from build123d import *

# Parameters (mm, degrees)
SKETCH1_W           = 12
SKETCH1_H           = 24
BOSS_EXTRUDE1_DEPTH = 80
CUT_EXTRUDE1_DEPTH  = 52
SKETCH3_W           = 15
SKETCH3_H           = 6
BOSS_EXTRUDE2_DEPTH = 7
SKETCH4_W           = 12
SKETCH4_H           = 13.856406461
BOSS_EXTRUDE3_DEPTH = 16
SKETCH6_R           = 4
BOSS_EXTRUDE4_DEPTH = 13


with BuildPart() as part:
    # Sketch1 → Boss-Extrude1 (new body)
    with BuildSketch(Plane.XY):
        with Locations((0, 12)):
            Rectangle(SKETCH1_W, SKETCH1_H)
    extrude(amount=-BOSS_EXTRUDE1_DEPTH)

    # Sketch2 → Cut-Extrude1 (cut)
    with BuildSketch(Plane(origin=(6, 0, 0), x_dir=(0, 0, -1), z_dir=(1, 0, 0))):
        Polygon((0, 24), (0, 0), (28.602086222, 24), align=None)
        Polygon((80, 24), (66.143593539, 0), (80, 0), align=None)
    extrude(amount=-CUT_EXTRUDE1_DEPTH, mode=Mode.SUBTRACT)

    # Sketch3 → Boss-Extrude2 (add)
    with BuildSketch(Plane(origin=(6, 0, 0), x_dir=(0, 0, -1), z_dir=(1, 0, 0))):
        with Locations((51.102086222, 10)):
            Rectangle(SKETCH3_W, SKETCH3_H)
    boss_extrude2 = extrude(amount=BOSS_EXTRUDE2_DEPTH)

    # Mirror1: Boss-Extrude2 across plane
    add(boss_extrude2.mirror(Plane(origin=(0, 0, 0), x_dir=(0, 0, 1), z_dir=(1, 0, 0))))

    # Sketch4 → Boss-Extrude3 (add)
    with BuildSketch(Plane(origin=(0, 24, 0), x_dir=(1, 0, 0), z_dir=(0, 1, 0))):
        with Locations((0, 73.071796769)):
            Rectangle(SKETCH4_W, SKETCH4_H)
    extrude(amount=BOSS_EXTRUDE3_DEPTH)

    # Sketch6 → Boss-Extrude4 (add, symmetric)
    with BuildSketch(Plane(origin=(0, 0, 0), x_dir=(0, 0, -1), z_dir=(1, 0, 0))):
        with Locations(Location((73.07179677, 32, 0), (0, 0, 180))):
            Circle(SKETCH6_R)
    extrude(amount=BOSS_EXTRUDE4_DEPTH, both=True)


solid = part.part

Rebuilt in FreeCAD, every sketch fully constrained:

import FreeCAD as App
import Part
import Sketcher
Q = App.Units.Quantity

doc = App.newDocument("Part")
body = doc.addObject("PartDesign::Body", "Body")

# Sketch on XY plane
sketch1 = body.newObject("Sketcher::SketchObject", "Sketch")
sketch1.AttachmentSupport = (doc.getObject("XY_Plane"), [""])
sketch1.MapMode = "FlatFace"
sketch1.addGeometry(Part.LineSegment(App.Vector(-6, 24, 0), App.Vector(-6, 0, 0)), False)
sketch1.addGeometry(Part.LineSegment(App.Vector(-6, 0, 0), App.Vector(6, 0, 0)), False)
sketch1.addGeometry(Part.LineSegment(App.Vector(6, 0, 0), App.Vector(6, 24, 0)), False)
sketch1.addGeometry(Part.LineSegment(App.Vector(6, 24, 0), App.Vector(-6, 24, 0)), False)
sketch1.addConstraint(Sketcher.Constraint("Coincident", 0, 2, 1, 1))
sketch1.addConstraint(Sketcher.Constraint("Coincident", 1, 2, 2, 1))
sketch1.addConstraint(Sketcher.Constraint("Coincident", 2, 2, 3, 1))
sketch1.addConstraint(Sketcher.Constraint("Coincident", 3, 2, 0, 1))
sketch1.addConstraint(Sketcher.Constraint("Vertical", 0))
sketch1.addConstraint(Sketcher.Constraint("Horizontal", 1))
sketch1.addConstraint(Sketcher.Constraint("Vertical", 2))
sketch1.addConstraint(Sketcher.Constraint("Horizontal", 3))
sketch1.addConstraint(Sketcher.Constraint("Symmetric", 0, 2, 1, 2, -1, 1))
sketch1.addConstraint(Sketcher.Constraint("DistanceX", 1, 1, 1, 2, Q("12 mm")))
sketch1.addConstraint(Sketcher.Constraint("DistanceY", 0, 2, 0, 1, Q("24 mm")))
pad1 = body.newObject("PartDesign::Pad", "Pad")
pad1.Profile = sketch1
pad1.Length = 80
pad1.Reversed = True

# Sketch on YZ plane
sketch2 = body.newObject("Sketcher::SketchObject", "Sketch001")
sketch2.AttachmentSupport = (doc.getObject("YZ_Plane"), [""])
sketch2.MapMode = "FlatFace"
sketch2.AttachmentOffset = App.Placement(App.Vector(0, 0, 6), App.Rotation())
sketch2.addGeometry(Part.LineSegment(App.Vector(24, 0, 0), App.Vector(0, 0, 0)), False)
sketch2.addGeometry(Part.LineSegment(App.Vector(0, 0, 0), App.Vector(24, -29, 0)), False)
sketch2.addGeometry(Part.LineSegment(App.Vector(24, -29, 0), App.Vector(24, 0, 0)), False)
sketch2.addGeometry(Part.LineSegment(App.Vector(24, -80, 0), App.Vector(0, -66, 0)), False)
sketch2.addGeometry(Part.LineSegment(App.Vector(0, -66, 0), App.Vector(0, -80, 0)), False)
sketch2.addGeometry(Part.LineSegment(App.Vector(0, -80, 0), App.Vector(24, -80, 0)), False)
sketch2.addConstraint(Sketcher.Constraint("Coincident", 0, 2, 1, 1))
sketch2.addConstraint(Sketcher.Constraint("Coincident", 1, 2, 2, 1))
sketch2.addConstraint(Sketcher.Constraint("Coincident", 2, 2, 0, 1))
sketch2.addConstraint(Sketcher.Constraint("Coincident", 3, 2, 4, 1))
sketch2.addConstraint(Sketcher.Constraint("Coincident", 4, 2, 5, 1))
sketch2.addConstraint(Sketcher.Constraint("Coincident", 5, 2, 3, 1))
sketch2.addConstraint(Sketcher.Constraint("Horizontal", 0))
sketch2.addConstraint(Sketcher.Constraint("Vertical", 2))
sketch2.addConstraint(Sketcher.Constraint("Vertical", 4))
sketch2.addConstraint(Sketcher.Constraint("Horizontal", 5))
sketch2.addConstraint(Sketcher.Constraint("Coincident", 0, 2, -1, 1))
sketch2.addConstraint(Sketcher.Constraint("PointOnObject", 3, 2, -2))
sketch2.addConstraint(Sketcher.Constraint("Vertical", 2, 2, 5, 2))
sketch2.addConstraint(Sketcher.Constraint("DistanceX", 0, 2, 0, 1, Q("24 mm")))
sketch2.addConstraint(Sketcher.Constraint("Angle", 1, Q("-50 deg")))
sketch2.addConstraint(Sketcher.Constraint("Angle", 3, Q("150 deg")))
sketch2.addConstraint(Sketcher.Constraint("DistanceY", 4, 2, -1, 1, Q("80 mm")))
pocket1 = body.newObject("PartDesign::Pocket", "Pocket")
pocket1.Profile = sketch2
pocket1.Length = 52

# Sketch on YZ plane
sketch3 = body.newObject("Sketcher::SketchObject", "Sketch002")
sketch3.AttachmentSupport = (doc.getObject("YZ_Plane"), [""])
sketch3.MapMode = "FlatFace"
sketch3.AttachmentOffset = App.Placement(App.Vector(0, 0, 6), App.Rotation())
sketch3.addGeometry(Part.LineSegment(App.Vector(13, -44, 0), App.Vector(7, -44, 0)), False)
sketch3.addGeometry(Part.LineSegment(App.Vector(7, -44, 0), App.Vector(7, -59, 0)), False)
sketch3.addGeometry(Part.LineSegment(App.Vector(7, -59, 0), App.Vector(13, -59, 0)), False)
sketch3.addGeometry(Part.LineSegment(App.Vector(13, -59, 0), App.Vector(13, -44, 0)), False)
sketch3.addConstraint(Sketcher.Constraint("Coincident", 0, 2, 1, 1))
sketch3.addConstraint(Sketcher.Constraint("Coincident", 1, 2, 2, 1))
sketch3.addConstraint(Sketcher.Constraint("Coincident", 2, 2, 3, 1))
sketch3.addConstraint(Sketcher.Constraint("Coincident", 3, 2, 0, 1))
sketch3.addConstraint(Sketcher.Constraint("Horizontal", 0))
sketch3.addConstraint(Sketcher.Constraint("Vertical", 1))
sketch3.addConstraint(Sketcher.Constraint("Horizontal", 2))
sketch3.addConstraint(Sketcher.Constraint("Vertical", 3))
sketch3.addConstraint(Sketcher.Constraint("DistanceX", 0, 2, 0, 1, Q("6 mm")))
sketch3.addConstraint(Sketcher.Constraint("DistanceY", 1, 2, 1, 1, Q("15 mm")))
sketch3.addConstraint(Sketcher.Constraint("DistanceX", -1, 1, 0, 2, Q("7 mm")))
sketch3.addConstraint(Sketcher.Constraint("DistanceY", 0, 2, -1, 1, Q("43.602086 mm")))
pad2 = body.newObject("PartDesign::Pad", "Pad001")
pad2.Profile = sketch3
pad2.Length = 7
doc.recompute()

mirrored = body.newObject("PartDesign::Mirrored", "Mirrored")
mirrored.Originals = [pad2]
mirrored.MirrorPlane = (doc.getObject("YZ_Plane"), [""])
body.Tip = mirrored

# Sketch on XZ plane
sketch4 = body.newObject("Sketcher::SketchObject", "Sketch003")
sketch4.AttachmentSupport = (doc.getObject("XZ_Plane"), [""])
sketch4.MapMode = "FlatFace"
sketch4.AttachmentOffset = App.Placement(App.Vector(0, 0, -24), App.Rotation())
sketch4.addGeometry(Part.LineSegment(App.Vector(-6, -80, 0), App.Vector(-6, -66, 0)), False)
sketch4.addGeometry(Part.LineSegment(App.Vector(-6, -66, 0), App.Vector(6, -66, 0)), False)
sketch4.addGeometry(Part.LineSegment(App.Vector(6, -66, 0), App.Vector(6, -80, 0)), False)
sketch4.addGeometry(Part.LineSegment(App.Vector(6, -80, 0), App.Vector(-6, -80, 0)), False)
sketch4.addConstraint(Sketcher.Constraint("Coincident", 0, 2, 1, 1))
sketch4.addConstraint(Sketcher.Constraint("Coincident", 1, 2, 2, 1))
sketch4.addConstraint(Sketcher.Constraint("Coincident", 2, 2, 3, 1))
sketch4.addConstraint(Sketcher.Constraint("Coincident", 3, 2, 0, 1))
sketch4.addConstraint(Sketcher.Constraint("Vertical", 0))
sketch4.addConstraint(Sketcher.Constraint("Horizontal", 1))
sketch4.addConstraint(Sketcher.Constraint("Vertical", 2))
sketch4.addConstraint(Sketcher.Constraint("Horizontal", 3))
sketch4.addConstraint(Sketcher.Constraint("DistanceX", 1, 1, 1, 2, Q("12 mm")))
sketch4.addConstraint(Sketcher.Constraint("DistanceX", 0, 2, -1, 1, Q("6 mm")))
sketch4.addConstraint(Sketcher.Constraint("DistanceY", 2, 2, -1, 1, Q("80 mm")))
sketch4.addConstraint(Sketcher.Constraint("DistanceY", 0, 1, 0, 2, Q("13.856406 mm")))
pad3 = body.newObject("PartDesign::Pad", "Pad002")
pad3.Profile = sketch4
pad3.Length = 16
pad3.Reversed = True

# Sketch on YZ plane
sketch5 = body.newObject("Sketcher::SketchObject", "Sketch004")
sketch5.AttachmentSupport = (doc.getObject("YZ_Plane"), [""])
sketch5.MapMode = "FlatFace"
sketch5.addGeometry(Part.Circle(App.Vector(32, -73.1, 0), App.Vector(0, 0, 1), 4), False)
sketch5.addConstraint(Sketcher.Constraint("Diameter", 0, Q("8 mm")))
sketch5.addConstraint(Sketcher.Constraint("DistanceX", -1, 1, 0, 3, Q("32 mm")))
sketch5.addConstraint(Sketcher.Constraint("DistanceY", 0, 3, -1, 1, Q("73.071797 mm")))
pad4 = body.newObject("PartDesign::Pad", "Pad003")
pad4.Profile = sketch5
pad4.Length = 26
pad4.Midplane = True

doc.recompute()
